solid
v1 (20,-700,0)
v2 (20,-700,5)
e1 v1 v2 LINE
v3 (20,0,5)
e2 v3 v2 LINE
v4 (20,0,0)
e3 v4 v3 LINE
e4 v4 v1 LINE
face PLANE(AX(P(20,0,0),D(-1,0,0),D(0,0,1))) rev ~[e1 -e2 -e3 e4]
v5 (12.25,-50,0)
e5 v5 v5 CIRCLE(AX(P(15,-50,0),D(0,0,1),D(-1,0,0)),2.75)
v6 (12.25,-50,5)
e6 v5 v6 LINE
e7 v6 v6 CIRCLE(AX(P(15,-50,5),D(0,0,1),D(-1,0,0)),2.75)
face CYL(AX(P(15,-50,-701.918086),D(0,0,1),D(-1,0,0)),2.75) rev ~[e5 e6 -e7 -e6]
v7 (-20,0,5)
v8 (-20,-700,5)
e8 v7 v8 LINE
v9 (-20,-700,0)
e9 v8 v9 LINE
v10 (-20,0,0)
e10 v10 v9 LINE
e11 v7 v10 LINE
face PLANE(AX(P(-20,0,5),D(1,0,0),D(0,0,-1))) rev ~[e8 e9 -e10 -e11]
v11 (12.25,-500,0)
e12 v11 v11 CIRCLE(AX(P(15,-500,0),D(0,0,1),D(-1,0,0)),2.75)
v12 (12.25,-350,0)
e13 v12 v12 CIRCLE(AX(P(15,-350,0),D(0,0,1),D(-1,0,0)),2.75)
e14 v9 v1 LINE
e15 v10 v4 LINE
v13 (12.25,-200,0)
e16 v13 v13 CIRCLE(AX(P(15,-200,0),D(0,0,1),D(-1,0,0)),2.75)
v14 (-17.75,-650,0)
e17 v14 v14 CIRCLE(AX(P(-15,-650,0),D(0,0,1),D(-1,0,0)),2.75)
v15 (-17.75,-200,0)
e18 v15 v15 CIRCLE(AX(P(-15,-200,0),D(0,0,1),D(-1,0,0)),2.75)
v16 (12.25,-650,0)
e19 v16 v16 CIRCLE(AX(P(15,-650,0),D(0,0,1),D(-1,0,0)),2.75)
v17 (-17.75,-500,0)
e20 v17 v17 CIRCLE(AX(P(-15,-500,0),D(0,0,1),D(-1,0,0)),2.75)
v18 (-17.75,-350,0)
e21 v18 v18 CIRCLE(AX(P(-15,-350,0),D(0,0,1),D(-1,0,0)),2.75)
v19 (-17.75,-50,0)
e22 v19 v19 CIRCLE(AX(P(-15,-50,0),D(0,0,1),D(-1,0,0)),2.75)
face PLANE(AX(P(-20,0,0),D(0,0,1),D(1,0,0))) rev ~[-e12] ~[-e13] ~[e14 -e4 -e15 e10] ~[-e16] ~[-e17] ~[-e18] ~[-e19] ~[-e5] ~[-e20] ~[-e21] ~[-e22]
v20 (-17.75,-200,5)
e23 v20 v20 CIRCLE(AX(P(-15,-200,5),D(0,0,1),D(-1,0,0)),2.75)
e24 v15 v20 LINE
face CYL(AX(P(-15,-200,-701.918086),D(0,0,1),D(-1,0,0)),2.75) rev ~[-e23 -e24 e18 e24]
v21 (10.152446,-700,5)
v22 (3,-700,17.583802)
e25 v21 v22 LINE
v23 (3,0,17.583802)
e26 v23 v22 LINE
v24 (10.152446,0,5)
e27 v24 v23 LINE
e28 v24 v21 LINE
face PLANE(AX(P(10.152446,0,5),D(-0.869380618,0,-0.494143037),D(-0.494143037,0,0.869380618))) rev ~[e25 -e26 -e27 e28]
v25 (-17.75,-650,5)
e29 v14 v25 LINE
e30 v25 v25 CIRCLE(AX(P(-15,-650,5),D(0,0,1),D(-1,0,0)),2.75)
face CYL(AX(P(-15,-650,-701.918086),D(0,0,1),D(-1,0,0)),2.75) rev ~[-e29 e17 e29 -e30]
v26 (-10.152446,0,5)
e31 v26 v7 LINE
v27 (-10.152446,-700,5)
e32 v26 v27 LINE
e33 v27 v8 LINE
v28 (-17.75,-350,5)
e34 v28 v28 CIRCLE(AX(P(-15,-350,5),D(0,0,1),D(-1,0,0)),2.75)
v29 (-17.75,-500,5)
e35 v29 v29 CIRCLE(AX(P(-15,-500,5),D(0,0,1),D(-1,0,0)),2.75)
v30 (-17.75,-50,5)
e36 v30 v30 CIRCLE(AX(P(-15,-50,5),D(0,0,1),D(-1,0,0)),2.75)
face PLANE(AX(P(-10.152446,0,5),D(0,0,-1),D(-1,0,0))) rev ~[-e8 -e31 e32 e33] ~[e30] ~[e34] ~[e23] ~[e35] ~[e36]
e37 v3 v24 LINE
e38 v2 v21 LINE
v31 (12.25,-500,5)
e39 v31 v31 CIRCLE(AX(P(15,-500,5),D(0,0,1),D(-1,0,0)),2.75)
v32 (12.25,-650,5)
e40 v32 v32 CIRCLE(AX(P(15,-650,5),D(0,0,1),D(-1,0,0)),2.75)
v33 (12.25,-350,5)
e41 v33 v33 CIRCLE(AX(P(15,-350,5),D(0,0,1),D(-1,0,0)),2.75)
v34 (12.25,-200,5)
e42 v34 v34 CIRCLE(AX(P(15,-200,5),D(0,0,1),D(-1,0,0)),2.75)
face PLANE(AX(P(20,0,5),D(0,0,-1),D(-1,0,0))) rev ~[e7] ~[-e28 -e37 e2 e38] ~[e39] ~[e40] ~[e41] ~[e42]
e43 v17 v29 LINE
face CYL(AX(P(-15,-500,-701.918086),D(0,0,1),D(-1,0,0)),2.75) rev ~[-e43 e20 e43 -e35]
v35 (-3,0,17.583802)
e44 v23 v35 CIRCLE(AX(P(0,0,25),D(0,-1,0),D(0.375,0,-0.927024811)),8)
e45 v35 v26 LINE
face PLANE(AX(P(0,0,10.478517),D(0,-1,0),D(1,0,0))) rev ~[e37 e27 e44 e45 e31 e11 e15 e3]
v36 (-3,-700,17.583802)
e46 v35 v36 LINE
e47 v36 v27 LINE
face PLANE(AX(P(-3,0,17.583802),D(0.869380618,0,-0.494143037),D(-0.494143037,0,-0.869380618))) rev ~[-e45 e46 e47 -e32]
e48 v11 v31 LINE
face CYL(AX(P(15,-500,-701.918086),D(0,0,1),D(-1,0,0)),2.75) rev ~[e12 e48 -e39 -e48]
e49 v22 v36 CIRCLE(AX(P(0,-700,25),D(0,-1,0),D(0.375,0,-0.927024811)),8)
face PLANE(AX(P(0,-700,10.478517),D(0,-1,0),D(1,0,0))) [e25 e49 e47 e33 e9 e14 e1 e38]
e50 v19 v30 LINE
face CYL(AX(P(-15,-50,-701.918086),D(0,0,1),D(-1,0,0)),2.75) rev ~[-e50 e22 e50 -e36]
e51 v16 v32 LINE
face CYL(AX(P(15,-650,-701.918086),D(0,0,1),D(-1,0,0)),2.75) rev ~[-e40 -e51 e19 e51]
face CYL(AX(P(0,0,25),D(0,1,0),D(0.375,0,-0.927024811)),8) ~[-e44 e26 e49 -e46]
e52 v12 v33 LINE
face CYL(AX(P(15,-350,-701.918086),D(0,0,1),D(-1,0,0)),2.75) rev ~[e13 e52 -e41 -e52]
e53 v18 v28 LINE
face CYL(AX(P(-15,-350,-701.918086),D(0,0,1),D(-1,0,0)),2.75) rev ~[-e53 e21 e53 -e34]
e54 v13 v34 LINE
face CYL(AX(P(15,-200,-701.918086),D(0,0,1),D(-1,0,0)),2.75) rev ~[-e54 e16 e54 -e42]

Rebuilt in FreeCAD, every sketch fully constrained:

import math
import FreeCAD as App
import Part
import Sketcher
Q = App.Units.Quantity

doc = App.newDocument("Part")
body = doc.addObject("PartDesign::Body", "Body")

# Sketch on XZ plane
sketch1 = doc.addObject("Sketcher::SketchObject", "Sketch")
body.addObject(sketch1)
sketch1.AttachmentSupport = (doc.XZ_Plane, [""])
sketch1.MapMode = "FlatFace"
sketch1.addGeometry([
    Part.LineSegment(App.Vector(-20, 0, 0), App.Vector(20, 0, 0)),  # 0
    Part.LineSegment(App.Vector(20, 0, 0), App.Vector(20, 5, 0)),  # 1
    Part.LineSegment(App.Vector(20, 5, 0), App.Vector(10, 5, 0)),  # 2
    Part.LineSegment(App.Vector(10, 5, 0), App.Vector(3, 18, 0)),  # 3
    Part.ArcOfCircle(Part.Circle(App.Vector(0, 25, 0), App.Vector(0, 0, 1), 8), math.radians(-68), math.radians(248)),  # 4
    Part.LineSegment(App.Vector(-3, 18, 0), App.Vector(-10, 5, 0)),  # 5
    Part.LineSegment(App.Vector(-10, 5, 0), App.Vector(-20, 5, 0)),  # 6
    Part.LineSegment(App.Vector(-20, 5, 0), App.Vector(-20, 0, 0)),  # 7
], False)
sketch1.addConstraint([
    Sketcher.Constraint("Coincident", 0, 2, 1, 1),
    Sketcher.Constraint("Coincident", 1, 2, 2, 1),
    Sketcher.Constraint("Coincident", 2, 2, 3, 1),
    Sketcher.Constraint("Coincident", 3, 2, 4, 1),
    Sketcher.Constraint("Coincident", 4, 2, 5, 1),
    Sketcher.Constraint("Coincident", 5, 2, 6, 1),
    Sketcher.Constraint("Coincident", 6, 2, 7, 1),
    Sketcher.Constraint("Coincident", 7, 2, 0, 1),
    Sketcher.Constraint("Horizontal", 0),
    Sketcher.Constraint("Vertical", 1),
    Sketcher.Constraint("Horizontal", 2),
    Sketcher.Constraint("Horizontal", 6),
    Sketcher.Constraint("Vertical", 7),
    Sketcher.Constraint("Symmetric", 0, 2, 7, 2, -1, 1),
    Sketcher.Constraint("Symmetric", 3, 2, 4, 2, -2),
    Sketcher.Constraint("Symmetric", 2, 2, 5, 2, -2),
    Sketcher.Constraint("Radius", 4, Q("8 mm")),
    Sketcher.Constraint("DistanceX", 0, 1, 0, 2, Q("40 mm")),
    Sketcher.Constraint("DistanceY", 1, 1, 1, 2, Q("5 mm")),
    Sketcher.Constraint("DistanceY", -1, 1, 4, 3, Q("25 mm")),
    Sketcher.Constraint("DistanceX", -1, 1, 3, 2, Q("3 mm")),
    Sketcher.Constraint("DistanceX", 2, 2, 2, 1, Q("9.847554 mm")),
])
pad1 = doc.addObject("PartDesign::Pad", "Pad")
body.addObject(pad1)
pad1.Profile = sketch1
pad1.Length = 700

# Sketch on XY plane
sketch2 = doc.addObject("Sketcher::SketchObject", "Sketch001")
body.addObject(sketch2)
sketch2.AttachmentSupport = (doc.XY_Plane, [""])
sketch2.MapMode = "FlatFace"
sketch2.addGeometry([
    Part.Circle(App.Vector(-15, -50, 0), App.Vector(0, 0, 1), 2.8),  # 0
    Part.Circle(App.Vector(15, -50, 0), App.Vector(0, 0, 1), 2.8),  # 1
    Part.Circle(App.Vector(-15, -200, 0), App.Vector(0, 0, 1), 2.8),  # 2
    Part.Circle(App.Vector(15, -200, 0), App.Vector(0, 0, 1), 2.8),  # 3
    Part.Circle(App.Vector(-15, -350, 0), App.Vector(0, 0, 1), 2.8),  # 4
    Part.Circle(App.Vector(15, -350, 0), App.Vector(0, 0, 1), 2.8),  # 5
    Part.Circle(App.Vector(-15, -500, 0), App.Vector(0, 0, 1), 2.8),  # 6
    Part.Circle(App.Vector(15, -500, 0), App.Vector(0, 0, 1), 2.8),  # 7
    Part.Circle(App.Vector(-15, -650, 0), App.Vector(0, 0, 1), 2.8),  # 8
    Part.Circle(App.Vector(15, -650, 0), App.Vector(0, 0, 1), 2.8),  # 9
], False)
sketch2.addConstraint([
    Sketcher.Constraint("Equal", 0, 1),
    Sketcher.Constraint("Equal", 1, 2),
    Sketcher.Constraint("Equal", 2, 3),
    Sketcher.Constraint("Equal", 3, 4),
    Sketcher.Constraint("Equal", 4, 5),
    Sketcher.Constraint("Equal", 5, 6),
    Sketcher.Constraint("Equal", 6, 7),
    Sketcher.Constraint("Equal", 7, 8),
    Sketcher.Constraint("Equal", 8, 9),
    Sketcher.Constraint("Symmetric", 0, 3, 1, 3, -2),
    Sketcher.Constraint("Symmetric", 2, 3, 3, 3, -2),
    Sketcher.Constraint("Symmetric", 4, 3, 5, 3, -2),
    Sketcher.Constraint("Symmetric", 6, 3, 7, 3, -2),
    Sketcher.Constraint("Symmetric", 8, 3, 9, 3, -2),
    Sketcher.Constraint("Vertical", 0, 3, 2, 3),
    Sketcher.Constraint("Vertical", 2, 3, 4, 3),
    Sketcher.Constraint("Vertical", 4, 3, 6, 3),
    Sketcher.Constraint("Vertical", 6, 3, 8, 3),
    Sketcher.Constraint("Diameter", 0, Q("5.5 mm")),
    Sketcher.Constraint("DistanceX", 0, 3, -1, 1, Q("15 mm")),
    Sketcher.Constraint("DistanceY", 0, 3, -1, 1, Q("50 mm")),
    Sketcher.Constraint("DistanceY", 2, 3, -1, 1, Q("200 mm")),
    Sketcher.Constraint("DistanceY", 4, 3, -1, 1, Q("350 mm")),
    Sketcher.Constraint("DistanceY", 6, 3, -1, 1, Q("500 mm")),
    Sketcher.Constraint("DistanceY", 8, 3, -1, 1, Q("650 mm")),
])
doc.recompute()
hole = doc.addObject("PartDesign::Hole", "Hole")
body.addObject(hole)
hole.Profile = sketch2
hole.ThreadType = "None"
hole.Diameter = 5.5
hole.DepthType = "ThroughAll"
hole.Reversed = True

doc.recompute()
